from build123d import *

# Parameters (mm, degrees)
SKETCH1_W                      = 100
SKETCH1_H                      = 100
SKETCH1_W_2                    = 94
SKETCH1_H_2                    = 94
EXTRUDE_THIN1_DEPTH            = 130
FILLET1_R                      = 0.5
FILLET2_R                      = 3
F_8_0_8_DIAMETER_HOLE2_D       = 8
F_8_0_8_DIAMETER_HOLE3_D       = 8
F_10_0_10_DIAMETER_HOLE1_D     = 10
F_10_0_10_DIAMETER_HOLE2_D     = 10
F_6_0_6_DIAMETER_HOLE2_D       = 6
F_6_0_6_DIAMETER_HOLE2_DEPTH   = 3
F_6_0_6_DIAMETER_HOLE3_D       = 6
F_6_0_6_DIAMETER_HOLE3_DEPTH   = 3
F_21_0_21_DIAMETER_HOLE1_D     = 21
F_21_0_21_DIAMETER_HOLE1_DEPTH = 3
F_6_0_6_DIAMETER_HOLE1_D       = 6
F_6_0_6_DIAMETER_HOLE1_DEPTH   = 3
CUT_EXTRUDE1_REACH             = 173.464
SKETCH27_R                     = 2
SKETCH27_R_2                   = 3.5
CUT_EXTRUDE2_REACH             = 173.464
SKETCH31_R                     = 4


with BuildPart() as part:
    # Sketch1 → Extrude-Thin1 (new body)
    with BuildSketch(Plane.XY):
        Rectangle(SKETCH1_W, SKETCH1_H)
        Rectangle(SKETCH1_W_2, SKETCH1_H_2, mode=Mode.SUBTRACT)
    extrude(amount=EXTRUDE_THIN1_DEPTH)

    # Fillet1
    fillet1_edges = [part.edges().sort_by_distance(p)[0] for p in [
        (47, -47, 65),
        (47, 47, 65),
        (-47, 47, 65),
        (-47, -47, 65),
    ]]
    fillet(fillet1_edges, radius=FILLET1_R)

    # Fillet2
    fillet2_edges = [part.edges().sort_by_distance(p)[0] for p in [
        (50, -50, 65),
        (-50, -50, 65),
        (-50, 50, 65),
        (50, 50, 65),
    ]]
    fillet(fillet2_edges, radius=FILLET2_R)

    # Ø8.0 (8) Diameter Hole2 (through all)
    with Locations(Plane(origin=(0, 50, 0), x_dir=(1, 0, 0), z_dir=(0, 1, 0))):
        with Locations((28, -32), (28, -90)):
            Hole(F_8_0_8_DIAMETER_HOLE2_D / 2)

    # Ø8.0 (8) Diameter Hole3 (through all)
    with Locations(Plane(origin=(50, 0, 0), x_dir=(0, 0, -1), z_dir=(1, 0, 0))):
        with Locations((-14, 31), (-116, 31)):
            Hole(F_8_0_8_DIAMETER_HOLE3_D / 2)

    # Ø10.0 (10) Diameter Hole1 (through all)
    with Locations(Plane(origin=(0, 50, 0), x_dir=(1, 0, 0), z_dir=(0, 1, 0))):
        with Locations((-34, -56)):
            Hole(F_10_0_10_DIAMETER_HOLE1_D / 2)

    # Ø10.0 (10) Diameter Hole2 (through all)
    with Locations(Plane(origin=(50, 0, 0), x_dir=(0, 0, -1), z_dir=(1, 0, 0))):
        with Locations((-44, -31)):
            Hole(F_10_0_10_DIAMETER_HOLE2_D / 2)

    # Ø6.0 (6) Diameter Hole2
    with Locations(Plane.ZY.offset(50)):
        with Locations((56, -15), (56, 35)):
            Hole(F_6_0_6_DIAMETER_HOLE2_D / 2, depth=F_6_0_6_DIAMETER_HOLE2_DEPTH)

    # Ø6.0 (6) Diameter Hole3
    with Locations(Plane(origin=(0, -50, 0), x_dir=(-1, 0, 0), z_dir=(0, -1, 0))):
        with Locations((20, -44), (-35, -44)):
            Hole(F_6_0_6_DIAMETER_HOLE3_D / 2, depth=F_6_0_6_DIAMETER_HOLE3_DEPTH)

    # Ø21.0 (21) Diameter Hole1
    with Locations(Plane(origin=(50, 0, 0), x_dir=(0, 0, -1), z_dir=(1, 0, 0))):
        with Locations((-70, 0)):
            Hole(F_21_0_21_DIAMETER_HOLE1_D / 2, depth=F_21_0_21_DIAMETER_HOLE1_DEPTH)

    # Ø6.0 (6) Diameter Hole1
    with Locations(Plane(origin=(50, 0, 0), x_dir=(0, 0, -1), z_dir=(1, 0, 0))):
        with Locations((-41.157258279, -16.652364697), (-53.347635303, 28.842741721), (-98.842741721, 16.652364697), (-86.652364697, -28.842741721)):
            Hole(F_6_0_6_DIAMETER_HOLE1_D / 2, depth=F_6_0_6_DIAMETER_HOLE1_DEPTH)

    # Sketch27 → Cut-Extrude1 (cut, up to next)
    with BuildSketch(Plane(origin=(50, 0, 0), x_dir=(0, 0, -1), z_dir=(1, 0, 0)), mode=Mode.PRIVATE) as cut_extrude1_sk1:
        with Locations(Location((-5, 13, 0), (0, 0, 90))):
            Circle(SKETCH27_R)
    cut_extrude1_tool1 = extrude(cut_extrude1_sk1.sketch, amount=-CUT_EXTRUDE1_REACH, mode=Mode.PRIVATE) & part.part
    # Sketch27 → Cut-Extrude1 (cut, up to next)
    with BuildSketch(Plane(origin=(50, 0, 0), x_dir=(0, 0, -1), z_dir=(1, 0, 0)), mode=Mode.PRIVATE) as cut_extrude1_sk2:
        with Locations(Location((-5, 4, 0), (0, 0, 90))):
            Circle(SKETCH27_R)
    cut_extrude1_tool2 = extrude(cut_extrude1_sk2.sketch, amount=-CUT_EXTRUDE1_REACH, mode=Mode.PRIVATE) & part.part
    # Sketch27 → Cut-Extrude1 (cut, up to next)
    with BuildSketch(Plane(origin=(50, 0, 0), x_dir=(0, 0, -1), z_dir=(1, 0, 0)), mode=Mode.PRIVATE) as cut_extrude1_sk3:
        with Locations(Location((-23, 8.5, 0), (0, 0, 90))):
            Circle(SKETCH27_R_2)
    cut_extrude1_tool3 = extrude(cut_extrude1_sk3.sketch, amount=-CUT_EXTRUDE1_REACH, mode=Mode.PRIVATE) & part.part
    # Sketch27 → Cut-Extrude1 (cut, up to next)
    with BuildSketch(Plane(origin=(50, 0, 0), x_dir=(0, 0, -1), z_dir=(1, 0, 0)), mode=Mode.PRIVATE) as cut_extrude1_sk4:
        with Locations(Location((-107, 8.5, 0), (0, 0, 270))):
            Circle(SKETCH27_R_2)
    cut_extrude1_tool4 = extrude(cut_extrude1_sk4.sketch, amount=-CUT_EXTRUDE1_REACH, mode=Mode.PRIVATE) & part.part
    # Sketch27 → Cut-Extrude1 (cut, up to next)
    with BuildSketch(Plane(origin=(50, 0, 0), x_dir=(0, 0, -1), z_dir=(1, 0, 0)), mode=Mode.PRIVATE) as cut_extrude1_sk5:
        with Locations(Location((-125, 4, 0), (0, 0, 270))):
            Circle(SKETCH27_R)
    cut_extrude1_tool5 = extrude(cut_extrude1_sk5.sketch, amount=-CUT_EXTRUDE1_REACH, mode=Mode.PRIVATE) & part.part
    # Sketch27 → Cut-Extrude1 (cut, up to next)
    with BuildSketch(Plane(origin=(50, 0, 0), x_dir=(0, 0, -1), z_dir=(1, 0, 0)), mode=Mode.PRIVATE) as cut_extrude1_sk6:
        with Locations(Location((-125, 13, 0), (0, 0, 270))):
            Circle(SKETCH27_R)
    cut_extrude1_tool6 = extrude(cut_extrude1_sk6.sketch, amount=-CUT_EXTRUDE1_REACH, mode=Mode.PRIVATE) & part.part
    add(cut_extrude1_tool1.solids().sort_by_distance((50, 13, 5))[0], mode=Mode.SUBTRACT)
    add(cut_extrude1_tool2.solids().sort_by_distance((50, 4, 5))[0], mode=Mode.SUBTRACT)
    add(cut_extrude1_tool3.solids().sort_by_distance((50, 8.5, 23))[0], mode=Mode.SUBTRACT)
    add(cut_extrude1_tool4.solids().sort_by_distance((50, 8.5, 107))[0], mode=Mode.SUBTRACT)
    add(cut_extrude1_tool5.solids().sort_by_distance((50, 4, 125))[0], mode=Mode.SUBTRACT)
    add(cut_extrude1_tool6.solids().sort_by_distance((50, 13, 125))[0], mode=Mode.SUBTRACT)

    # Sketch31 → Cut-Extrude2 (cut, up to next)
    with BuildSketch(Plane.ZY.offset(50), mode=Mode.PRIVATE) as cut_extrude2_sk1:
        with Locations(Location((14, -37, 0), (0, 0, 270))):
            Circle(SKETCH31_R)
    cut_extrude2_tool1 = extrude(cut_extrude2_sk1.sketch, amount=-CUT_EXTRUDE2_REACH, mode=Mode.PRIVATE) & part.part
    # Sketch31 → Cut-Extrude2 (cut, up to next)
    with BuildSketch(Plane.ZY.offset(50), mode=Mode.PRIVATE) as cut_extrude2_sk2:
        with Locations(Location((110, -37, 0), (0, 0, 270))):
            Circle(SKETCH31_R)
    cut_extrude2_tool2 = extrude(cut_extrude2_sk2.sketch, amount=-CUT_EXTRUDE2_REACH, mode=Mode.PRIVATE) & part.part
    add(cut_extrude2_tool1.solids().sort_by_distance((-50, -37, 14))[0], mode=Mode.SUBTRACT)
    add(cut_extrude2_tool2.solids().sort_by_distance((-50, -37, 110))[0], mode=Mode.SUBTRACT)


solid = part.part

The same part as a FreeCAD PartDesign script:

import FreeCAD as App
import Part
import Sketcher
Q = App.Units.Quantity


def edges_at(feature, points):
    """Names of the edges that pass closest to the given points."""
    edges = feature.Shape.Edges
    near = lambda p: min(range(len(edges)), key=lambda i: edges[i].distToShape(Part.Vertex(*p))[0])
    return sorted({f"Edge{near(p) + 1}" for p in points})

doc = App.newDocument("Part")
body = doc.addObject("PartDesign::Body", "Body")

# Sketch on XY plane
sketch1 = body.newObject("Sketcher::SketchObject", "Sketch")
sketch1.AttachmentSupport = (doc.getObject("XY_Plane"), [""])
sketch1.MapMode = "FlatFace"
sketch1.addGeometry([
    Part.LineSegment(App.Vector(-50, 50, 0), App.Vector(-50, -50, 0)),  # 0
    Part.LineSegment(App.Vector(-50, -50, 0), App.Vector(50, -50, 0)),  # 1
    Part.LineSegment(App.Vector(50, -50, 0), App.Vector(50, 50, 0)),  # 2
    Part.LineSegment(App.Vector(50, 50, 0), App.Vector(-50, 50, 0)),  # 3
    Part.LineSegment(App.Vector(47, -47, 0), App.Vector(-47, -47, 0)),  # 4
    Part.LineSegment(App.Vector(-47, -47, 0), App.Vector(-47, 47, 0)),  # 5
    Part.LineSegment(App.Vector(-47, 47, 0), App.Vector(47, 47, 0)),  # 6
    Part.LineSegment(App.Vector(47, 47, 0), App.Vector(47, -47, 0)),  # 7
], False)
sketch1.addConstraint([
    Sketcher.Constraint("Coincident", 0, 2, 1, 1),
    Sketcher.Constraint("Coincident", 1, 2, 2, 1),
    Sketcher.Constraint("Coincident", 2, 2, 3, 1),
    Sketcher.Constraint("Coincident", 3, 2, 0, 1),
    Sketcher.Constraint("Coincident", 4, 2, 5, 1),
    Sketcher.Constraint("Coincident", 5, 2, 6, 1),
    Sketcher.Constraint("Coincident", 6, 2, 7, 1),
    Sketcher.Constraint("Coincident", 7, 2, 4, 1),
    Sketcher.Constraint("Vertical", 0),
    Sketcher.Constraint("Horizontal", 1),
    Sketcher.Constraint("Vertical", 2),
    Sketcher.Constraint("Horizontal", 3),
    Sketcher.Constraint("Horizontal", 4),
    Sketcher.Constraint("Vertical", 5),
    Sketcher.Constraint("Horizontal", 6),
    Sketcher.Constraint("Vertical", 7),
    Sketcher.Constraint("Symmetric", 0, 2, 2, 2, -1, 1),
    Sketcher.Constraint("Symmetric", 4, 2, 6, 2, -1, 1),
    Sketcher.Constraint("Equal", 3, 0),
    Sketcher.Constraint("Equal", 6, 5),
    Sketcher.Constraint("DistanceX", 1, 1, 1, 2, Q("100 mm")),
    Sketcher.Constraint("DistanceX", 4, 2, 4, 1, Q("94 mm")),
])
pad1 = body.newObject("PartDesign::Pad", "Pad")
pad1.Profile = sketch1
pad1.Length = 130
doc.recompute()

fillet = body.newObject("PartDesign::Fillet", "Fillet")
fillet.Base = (pad1, edges_at(pad1, [
    (47, -47, 65),
    (47, 47, 65),
    (-47, 47, 65),
    (-47, -47, 65),
]))
fillet.Radius = 0.5
doc.recompute()

fillet2 = body.newObject("PartDesign::Fillet", "Fillet001")
fillet2.Base = (fillet, edges_at(fillet, [
    (50, -50, 65),
    (-50, -50, 65),
    (-50, 50, 65),
    (50, 50, 65),
]))
fillet2.Radius = 3

# Sketch on XZ plane
sketch2 = body.newObject("Sketcher::SketchObject", "Sketch001")
sketch2.AttachmentSupport = (doc.getObject("XZ_Plane"), [""])
sketch2.MapMode = "FlatFace"
sketch2.AttachmentOffset = App.Placement(App.Vector(0, 0, -50), App.Rotation())
sketch2.addGeometry([
    Part.Circle(App.Vector(28, 32, 0), App.Vector(0, 0, 1), 4),
    Part.Circle(App.Vector(28, 90, 0), App.Vector(0, 0, 1), 4),
], False)
sketch2.addConstraint([
    Sketcher.Constraint("Equal", 0, 1),
    Sketcher.Constraint("Vertical", 0, 3, 1, 3),
    Sketcher.Constraint("Diameter", 0, Q("8 mm")),
    Sketcher.Constraint("DistanceX", -1, 1, 0, 3, Q("28 mm")),
    Sketcher.Constraint("DistanceY", -1, 1, 0, 3, Q("32 mm")),
    Sketcher.Constraint("DistanceY", -1, 1, 1, 3, Q("90 mm")),
])
doc.recompute()
hole = body.newObject("PartDesign::Hole", "Hole")
hole.Profile = sketch2
hole.ThreadType = "None"
hole.Diameter = 8
hole.DepthType = "ThroughAll"
hole.Reversed = True

# Sketch on YZ plane
sketch3 = body.newObject("Sketcher::SketchObject", "Sketch002")
sketch3.AttachmentSupport = (doc.getObject("YZ_Plane"), [""])
sketch3.MapMode = "FlatFace"
sketch3.AttachmentOffset = App.Placement(App.Vector(0, 0, 50), App.Rotation())
sketch3.addGeometry([
    Part.Circle(App.Vector(31, 14, 0), App.Vector(0, 0, 1), 4),
    Part.Circle(App.Vector(31, 116, 0), App.Vector(0, 0, 1), 4),
], False)
sketch3.addConstraint([
    Sketcher.Constraint("Equal", 0, 1),
    Sketcher.Constraint("Vertical", 0, 3, 1, 3),
    Sketcher.Constraint("Diameter", 0, Q("8 mm")),
    Sketcher.Constraint("DistanceX", -1, 1, 0, 3, Q("31 mm")),
    Sketcher.Constraint("DistanceY", -1, 1, 0, 3, Q("14 mm")),
    Sketcher.Constraint("DistanceY", -1, 1, 1, 3, Q("116 mm")),
])
doc.recompute()
hole2 = body.newObject("PartDesign::Hole", "Hole001")
hole2.Profile = sketch3
hole2.ThreadType = "None"
hole2.Diameter = 8
hole2.DepthType = "ThroughAll"

# Sketch on XZ plane
sketch4 = body.newObject("Sketcher::SketchObject", "Sketch003")
sketch4.AttachmentSupport = (doc.getObject("XZ_Plane"), [""])
sketch4.MapMode = "FlatFace"
sketch4.AttachmentOffset = App.Placement(App.Vector(0, 0, -50), App.Rotation())
sketch4.addGeometry(Part.Circle(App.Vector(-34, 56, 0), App.Vector(0, 0, 1), 5), False)
sketch4.addConstraint([
    Sketcher.Constraint("Diameter", 0, Q("10 mm")),
    Sketcher.Constraint("DistanceX", 0, 3, -1, 1, Q("34 mm")),
    Sketcher.Constraint("DistanceY", -1, 1, 0, 3, Q("56 mm")),
])
doc.recompute()
hole3 = body.newObject("PartDesign::Hole", "Hole002")
hole3.Profile = sketch4
hole3.ThreadType = "None"
hole3.Diameter = 10
hole3.DepthType = "ThroughAll"
hole3.Reversed = True

# Sketch on YZ plane
sketch5 = body.newObject("Sketcher::SketchObject", "Sketch004")
sketch5.AttachmentSupport = (doc.getObject("YZ_Plane"), [""])
sketch5.MapMode = "FlatFace"
sketch5.AttachmentOffset = App.Placement(App.Vector(0, 0, 50), App.Rotation())
sketch5.addGeometry(Part.Circle(App.Vector(-31, 44, 0), App.Vector(0, 0, 1), 5), False)
sketch5.addConstraint([
    Sketcher.Constraint("Diameter", 0, Q("10 mm")),
    Sketcher.Constraint("DistanceX", 0, 3, -1, 1, Q("31 mm")),
    Sketcher.Constraint("DistanceY", -1, 1, 0, 3, Q("44 mm")),
])
doc.recompute()
hole4 = body.newObject("PartDesign::Hole", "Hole003")
hole4.Profile = sketch5
hole4.ThreadType = "None"
hole4.Diameter = 10
hole4.DepthType = "ThroughAll"

# Sketch on YZ plane
sketch6 = body.newObject("Sketcher::SketchObject", "Sketch005")
sketch6.AttachmentSupport = (doc.getObject("YZ_Plane"), [""])
sketch6.MapMode = "FlatFace"
sketch6.AttachmentOffset = App.Placement(App.Vector(0, 0, -50), App.Rotation())
sketch6.addGeometry([
    Part.Circle(App.Vector(-15, 56, 0), App.Vector(0, 0, 1), 3),
    Part.Circle(App.Vector(35, 56, 0), App.Vector(0, 0, 1), 3),
], False)
sketch6.addConstraint([
    Sketcher.Constraint("Equal", 0, 1),
    Sketcher.Constraint("Horizontal", 0, 3, 1, 3),
    Sketcher.Constraint("Diameter", 0, Q("6 mm")),
    Sketcher.Constraint("DistanceX", 0, 3, -1, 1, Q("15 mm")),
    Sketcher.Constraint("DistanceY", -1, 1, 0, 3, Q("56 mm")),
    Sketcher.Constraint("DistanceX", -1, 1, 1, 3, Q("35 mm")),
])
doc.recompute()
hole5 = body.newObject("PartDesign::Hole", "Hole004")
hole5.Profile = sketch6
hole5.ThreadType = "None"
hole5.Diameter = 6
hole5.DepthType = "Dimension"
hole5.Depth = 3
hole5.DrillPoint = "Flat"
hole5.Reversed = True

# Sketch on XZ plane
sketch7 = body.newObject("Sketcher::SketchObject", "Sketch006")
sketch7.AttachmentSupport = (doc.getObject("XZ_Plane"), [""])
sketch7.MapMode = "FlatFace"
sketch7.AttachmentOffset = App.Placement(App.Vector(0, 0, 50), App.Rotation())
sketch7.addGeometry([
    Part.Circle(App.Vector(-20, 44, 0), App.Vector(0, 0, 1), 3),
    Part.Circle(App.Vector(35, 44, 0), App.Vector(0, 0, 1), 3),
], False)
sketch7.addConstraint([
    Sketcher.Constraint("Equal", 0, 1),
    Sketcher.Constraint("Horizontal", 0, 3, 1, 3),
    Sketcher.Constraint("Diameter", 0, Q("6 mm")),
    Sketcher.Constraint("DistanceX", 0, 3, -1, 1, Q("20 mm")),
    Sketcher.Constraint("DistanceY", -1, 1, 0, 3, Q("44 mm")),
    Sketcher.Constraint("DistanceX", -1, 1, 1, 3, Q("35 mm")),
])
doc.recompute()
hole6 = body.newObject("PartDesign::Hole", "Hole005")
hole6.Profile = sketch7
hole6.ThreadType = "None"
hole6.Diameter = 6
hole6.DepthType = "Dimension"
hole6.Depth = 3
hole6.DrillPoint = "Flat"

# Sketch on YZ plane
sketch8 = body.newObject("Sketcher::SketchObject", "Sketch007")
sketch8.AttachmentSupport = (doc.getObject("YZ_Plane"), [""])
sketch8.MapMode = "FlatFace"
sketch8.AttachmentOffset = App.Placement(App.Vector(0, 0, 50), App.Rotation())
sketch8.addGeometry(Part.Circle(App.Vector(0, 70, 0), App.Vector(0, 0, 1), 10), False)
sketch8.addConstraint([
    Sketcher.Constraint("PointOnObject", 0, 3, -2),
    Sketcher.Constraint("Diameter", 0, Q("21 mm")),
    Sketcher.Constraint("DistanceY", -1, 1, 0, 3, Q("70 mm")),
])
doc.recompute()
hole7 = body.newObject("PartDesign::Hole", "Hole006")
hole7.Profile = sketch8
hole7.ThreadType = "None"
hole7.Diameter = 21
hole7.DepthType = "Dimension"
hole7.Depth = 3
hole7.DrillPoint = "Flat"

# Sketch on YZ plane
sketch9 = body.newObject("Sketcher::SketchObject", "Sketch008")
sketch9.AttachmentSupport = (doc.getObject("YZ_Plane"), [""])
sketch9.MapMode = "FlatFace"
sketch9.AttachmentOffset = App.Placement(App.Vector(0, 0, 50), App.Rotation())
sketch9.addGeometry([
    Part.Circle(App.Vector(-16.7, 41.2, 0), App.Vector(0, 0, 1), 3),
    Part.Circle(App.Vector(28.8, 53.3, 0), App.Vector(0, 0, 1), 3),
    Part.Circle(App.Vector(16.7, 98.8, 0), App.Vector(0, 0, 1), 3),
    Part.Circle(App.Vector(-28.8, 86.7, 0), App.Vector(0, 0, 1), 3),
], False)
sketch9.addConstraint([
    Sketcher.Constraint("Equal", 0, 1),
    Sketcher.Constraint("Equal", 1, 2),
    Sketcher.Constraint("Equal", 2, 3),
    Sketcher.Constraint("Diameter", 0, Q("6 mm")),
    Sketcher.Constraint("DistanceY", -1, 1, 0, 3, Q("41.157258 mm")),
    Sketcher.Constraint("DistanceX", -1, 1, 1, 3, Q("28.842742 mm")),
    Sketcher.Constraint("DistanceY", -1, 1, 2, 3, Q("98.842742 mm")),
    Sketcher.Constraint("DistanceX", 3, 3, -1, 1, Q("28.842742 mm")),
    Sketcher.Constraint("DistanceX", 0, 3, 2, 3, Q("33.304729 mm")),
    Sketcher.Constraint("DistanceY", 1, 3, 3, 3, Q("33.304729 mm")),
    Sketcher.Constraint("DistanceX", 0, 3, -1, 1, Q("16.652365 mm")),
    Sketcher.Constraint("DistanceY", -1, 1, 1, 3, Q("53.347635 mm")),
])
doc.recompute()
hole8 = body.newObject("PartDesign::Hole", "Hole007")
hole8.Profile = sketch9
hole8.ThreadType = "None"
hole8.Diameter = 6
hole8.DepthType = "Dimension"
hole8.Depth = 3
hole8.DrillPoint = "Flat"

# Sketch on YZ plane
sketch10 = body.newObject("Sketcher::SketchObject", "Sketch009")
sketch10.AttachmentSupport = (doc.getObject("YZ_Plane"), [""])
sketch10.MapMode = "FlatFace"
sketch10.AttachmentOffset = App.Placement(App.Vector(0, 0, 50), App.Rotation())
sketch10.addGeometry(Part.Circle(App.Vector(13, 5, 0), App.Vector(0, 0, 1), 2), False)
sketch10.addConstraint([
    Sketcher.Constraint("Diameter", 0, Q("4 mm")),
    Sketcher.Constraint("DistanceX", -1, 1, 0, 3, Q("13 mm")),
    Sketcher.Constraint("DistanceY", -1, 1, 0, 3, Q("5 mm")),
])
pocket1 = body.newObject("PartDesign::Pocket", "Pocket")
pocket1.Profile = sketch10
pocket1.Type = "UpToFirst"

# Sketch on YZ plane
sketch11 = body.newObject("Sketcher::SketchObject", "Sketch010")
sketch11.AttachmentSupport = (doc.getObject("YZ_Plane"), [""])
sketch11.MapMode = "FlatFace"
sketch11.AttachmentOffset = App.Placement(App.Vector(0, 0, 50), App.Rotation())
sketch11.addGeometry(Part.Circle(App.Vector(4, 5, 0), App.Vector(0, 0, 1), 2), False)
sketch11.addConstraint([
    Sketcher.Constraint("Diameter", 0, Q("4 mm")),
    Sketcher.Constraint("DistanceX", -1, 1, 0, 3, Q("4 mm")),
    Sketcher.Constraint("DistanceY", -1, 1, 0, 3, Q("5 mm")),
])
pocket2 = body.newObject("PartDesign::Pocket", "Pocket001")
pocket2.Profile = sketch11
pocket2.Type = "UpToFirst"

# Sketch on YZ plane
sketch12 = body.newObject("Sketcher::SketchObject", "Sketch011")
sketch12.AttachmentSupport = (doc.getObject("YZ_Plane"), [""])
sketch12.MapMode = "FlatFace"
sketch12.AttachmentOffset = App.Placement(App.Vector(0, 0, 50), App.Rotation())
sketch12.addGeometry(Part.Circle(App.Vector(8.5, 23, 0), App.Vector(0, 0, 1), 3.5), False)
sketch12.addConstraint([
    Sketcher.Constraint("Diameter", 0, Q("7 mm")),
    Sketcher.Constraint("DistanceY", -1, 1, 0, 3, Q("23 mm")),
    Sketcher.Constraint("DistanceX", -1, 1, 0, 3, Q("8.5 mm")),
])
pocket3 = body.newObject("PartDesign::Pocket", "Pocket002")
pocket3.Profile = sketch12
pocket3.Type = "UpToFirst"

# Sketch on YZ plane
sketch13 = body.newObject("Sketcher::SketchObject", "Sketch012")
sketch13.AttachmentSupport = (doc.getObject("YZ_Plane"), [""])
sketch13.MapMode = "FlatFace"
sketch13.AttachmentOffset = App.Placement(App.Vector(0, 0, 50), App.Rotation())
sketch13.addGeometry(Part.Circle(App.Vector(8.5, 107, 0), App.Vector(0, 0, 1), 3.5), False)
sketch13.addConstraint([
    Sketcher.Constraint("Diameter", 0, Q("7 mm")),
    Sketcher.Constraint("DistanceY", -1, 1, 0, 3, Q("107 mm")),
    Sketcher.Constraint("DistanceX", -1, 1, 0, 3, Q("8.5 mm")),
])
pocket4 = body.newObject("PartDesign::Pocket", "Pocket003")
pocket4.Profile = sketch13
pocket4.Type = "UpToFirst"

# Sketch on YZ plane
sketch14 = body.newObject("Sketcher::SketchObject", "Sketch013")
sketch14.AttachmentSupport = (doc.getObject("YZ_Plane"), [""])
sketch14.MapMode = "FlatFace"
sketch14.AttachmentOffset = App.Placement(App.Vector(0, 0, 50), App.Rotation())
sketch14.addGeometry(Part.Circle(App.Vector(4, 125, 0), App.Vector(0, 0, 1), 2), False)
sketch14.addConstraint([
    Sketcher.Constraint("Diameter", 0, Q("4 mm")),
    Sketcher.Constraint("DistanceX", -1, 1, 0, 3, Q("4 mm")),
    Sketcher.Constraint("DistanceY", -1, 1, 0, 3, Q("125 mm")),
])
pocket5 = body.newObject("PartDesign::Pocket", "Pocket004")
pocket5.Profile = sketch14
pocket5.Type = "UpToFirst"

# Sketch on YZ plane
sketch15 = body.newObject("Sketcher::SketchObject", "Sketch014")
sketch15.AttachmentSupport = (doc.getObject("YZ_Plane"), [""])
sketch15.MapMode = "FlatFace"
sketch15.AttachmentOffset = App.Placement(App.Vector(0, 0, 50), App.Rotation())
sketch15.addGeometry(Part.Circle(App.Vector(13, 125, 0), App.Vector(0, 0, 1), 2), False)
sketch15.addConstraint([
    Sketcher.Constraint("Diameter", 0, Q("4 mm")),
    Sketcher.Constraint("DistanceX", -1, 1, 0, 3, Q("13 mm")),
    Sketcher.Constraint("DistanceY", -1, 1, 0, 3, Q("125 mm")),
])
pocket6 = body.newObject("PartDesign::Pocket", "Pocket005")
pocket6.Profile = sketch15
pocket6.Type = "UpToFirst"

# Sketch on YZ plane
sketch16 = body.newObject("Sketcher::SketchObject", "Sketch015")
sketch16.AttachmentSupport = (doc.getObject("YZ_Plane"), [""])
sketch16.MapMode = "FlatFace"
sketch16.AttachmentOffset = App.Placement(App.Vector(0, 0, -50), App.Rotation())
sketch16.addGeometry(Part.Circle(App.Vector(-37, 14, 0), App.Vector(0, 0, 1), 4), False)
sketch16.addConstraint([
    Sketcher.Constraint("Diameter", 0, Q("8 mm")),
    Sketcher.Constraint("DistanceX", 0, 3, -1, 1, Q("37 mm")),
    Sketcher.Constraint("DistanceY", -1, 1, 0, 3, Q("14 mm")),
])
pocket7 = body.newObject("PartDesign::Pocket", "Pocket006")
pocket7.Profile = sketch16
pocket7.Type = "UpToFirst"
pocket7.Reversed = True

# Sketch on YZ plane
sketch17 = body.newObject("Sketcher::SketchObject", "Sketch016")
sketch17.AttachmentSupport = (doc.getObject("YZ_Plane"), [""])
sketch17.MapMode = "FlatFace"
sketch17.AttachmentOffset = App.Placement(App.Vector(0, 0, -50), App.Rotation())
sketch17.addGeometry(Part.Circle(App.Vector(-37, 110, 0), App.Vector(0, 0, 1), 4), False)
sketch17.addConstraint([
    Sketcher.Constraint("Diameter", 0, Q("8 mm")),
    Sketcher.Constraint("DistanceX", 0, 3, -1, 1, Q("37 mm")),
    Sketcher.Constraint("DistanceY", -1, 1, 0, 3, Q("110 mm")),
])
pocket8 = body.newObject("PartDesign::Pocket", "Pocket007")
pocket8.Profile = sketch17
pocket8.Type = "UpToFirst"
pocket8.Reversed = True

doc.recompute()
